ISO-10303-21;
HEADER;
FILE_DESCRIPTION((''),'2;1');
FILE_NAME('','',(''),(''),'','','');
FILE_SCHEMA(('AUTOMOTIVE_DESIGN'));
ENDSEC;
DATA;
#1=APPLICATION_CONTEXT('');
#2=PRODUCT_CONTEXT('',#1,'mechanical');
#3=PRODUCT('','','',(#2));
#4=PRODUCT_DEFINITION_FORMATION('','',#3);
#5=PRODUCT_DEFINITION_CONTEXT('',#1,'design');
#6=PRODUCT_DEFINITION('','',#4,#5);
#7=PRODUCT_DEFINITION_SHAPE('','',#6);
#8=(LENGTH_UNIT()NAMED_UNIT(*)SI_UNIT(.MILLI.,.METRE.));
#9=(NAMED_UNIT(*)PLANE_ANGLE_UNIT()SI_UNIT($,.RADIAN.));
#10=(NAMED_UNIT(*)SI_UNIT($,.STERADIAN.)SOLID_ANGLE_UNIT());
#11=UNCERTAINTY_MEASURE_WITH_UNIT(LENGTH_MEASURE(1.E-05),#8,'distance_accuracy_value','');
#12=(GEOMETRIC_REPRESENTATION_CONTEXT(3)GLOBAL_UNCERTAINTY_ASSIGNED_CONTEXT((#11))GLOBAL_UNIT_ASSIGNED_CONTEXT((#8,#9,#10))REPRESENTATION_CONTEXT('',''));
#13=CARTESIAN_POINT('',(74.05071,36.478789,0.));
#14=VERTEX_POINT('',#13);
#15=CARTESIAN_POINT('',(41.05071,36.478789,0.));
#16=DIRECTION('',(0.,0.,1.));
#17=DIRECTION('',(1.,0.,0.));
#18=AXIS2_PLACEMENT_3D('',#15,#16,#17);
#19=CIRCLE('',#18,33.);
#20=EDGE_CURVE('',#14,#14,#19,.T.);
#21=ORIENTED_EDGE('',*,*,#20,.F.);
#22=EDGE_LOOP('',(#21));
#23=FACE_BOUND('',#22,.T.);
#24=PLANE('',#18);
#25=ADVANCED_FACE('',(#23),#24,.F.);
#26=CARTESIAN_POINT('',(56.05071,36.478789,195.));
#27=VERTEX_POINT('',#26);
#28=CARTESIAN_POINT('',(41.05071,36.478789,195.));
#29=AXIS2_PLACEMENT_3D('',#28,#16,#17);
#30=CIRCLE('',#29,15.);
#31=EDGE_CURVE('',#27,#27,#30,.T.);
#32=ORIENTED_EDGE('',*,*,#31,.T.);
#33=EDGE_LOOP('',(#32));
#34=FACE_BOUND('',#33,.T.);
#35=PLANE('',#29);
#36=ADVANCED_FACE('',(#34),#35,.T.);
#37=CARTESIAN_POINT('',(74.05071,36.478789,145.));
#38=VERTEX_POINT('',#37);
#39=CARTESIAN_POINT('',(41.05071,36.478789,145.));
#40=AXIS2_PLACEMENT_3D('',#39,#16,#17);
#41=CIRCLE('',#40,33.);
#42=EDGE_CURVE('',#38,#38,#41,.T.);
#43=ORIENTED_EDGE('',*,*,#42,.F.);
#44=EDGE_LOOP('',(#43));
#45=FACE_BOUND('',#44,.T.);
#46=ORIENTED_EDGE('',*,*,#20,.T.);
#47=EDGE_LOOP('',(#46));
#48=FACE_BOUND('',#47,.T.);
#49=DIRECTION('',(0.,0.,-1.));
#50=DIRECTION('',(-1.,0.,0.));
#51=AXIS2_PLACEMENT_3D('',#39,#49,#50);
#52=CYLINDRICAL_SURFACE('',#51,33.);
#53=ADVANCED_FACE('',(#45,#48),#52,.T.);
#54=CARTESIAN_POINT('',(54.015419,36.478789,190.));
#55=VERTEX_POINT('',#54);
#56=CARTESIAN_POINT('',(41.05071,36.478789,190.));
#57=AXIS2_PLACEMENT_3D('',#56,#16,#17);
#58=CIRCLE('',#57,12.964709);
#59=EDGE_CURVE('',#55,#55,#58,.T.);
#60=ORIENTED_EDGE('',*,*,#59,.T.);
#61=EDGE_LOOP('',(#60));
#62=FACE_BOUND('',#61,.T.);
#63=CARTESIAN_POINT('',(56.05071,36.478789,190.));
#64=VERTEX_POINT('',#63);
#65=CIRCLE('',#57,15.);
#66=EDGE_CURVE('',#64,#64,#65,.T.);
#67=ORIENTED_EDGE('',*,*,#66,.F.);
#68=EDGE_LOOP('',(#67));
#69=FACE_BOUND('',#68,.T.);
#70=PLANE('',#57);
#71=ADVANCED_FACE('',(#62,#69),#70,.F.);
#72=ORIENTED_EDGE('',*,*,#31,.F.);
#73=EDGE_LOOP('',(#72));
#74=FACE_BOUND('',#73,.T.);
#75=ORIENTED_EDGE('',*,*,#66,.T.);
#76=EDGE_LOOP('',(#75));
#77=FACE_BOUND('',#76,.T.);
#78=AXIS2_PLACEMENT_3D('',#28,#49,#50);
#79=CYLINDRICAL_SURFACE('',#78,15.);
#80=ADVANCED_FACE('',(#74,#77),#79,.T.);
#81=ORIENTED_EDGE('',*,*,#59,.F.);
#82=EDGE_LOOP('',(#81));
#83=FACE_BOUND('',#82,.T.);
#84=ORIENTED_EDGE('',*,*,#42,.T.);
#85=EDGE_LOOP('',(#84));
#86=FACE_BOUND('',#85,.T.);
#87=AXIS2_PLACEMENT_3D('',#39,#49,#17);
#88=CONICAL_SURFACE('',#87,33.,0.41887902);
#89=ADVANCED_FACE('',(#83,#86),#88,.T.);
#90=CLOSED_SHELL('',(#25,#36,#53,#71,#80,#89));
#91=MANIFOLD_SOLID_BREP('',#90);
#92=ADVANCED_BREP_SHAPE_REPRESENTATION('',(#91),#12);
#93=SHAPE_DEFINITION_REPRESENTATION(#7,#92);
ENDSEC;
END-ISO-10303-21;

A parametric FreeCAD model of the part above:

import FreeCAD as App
import Part
import Sketcher

V = App.Vector
Q = App.Units.Quantity

doc = App.newDocument("Part")
params = doc.addObject("Spreadsheet::Sheet", "Params")
for row, (alias, value) in enumerate([
    ("sketch1_diameter", "66 mm"),
    ("pad1_length", "145 mm"),
    ("sketch2_diameter", "66 mm"),
    ("pad2_length", "45 mm"),
    ("pad2_taper", "-24 deg"),
    ("sketch3_diameter", "30 mm"),
    ("pad3_length", "5 mm"),
], start=1):
    params.set(f"A{row}", alias)
    params.set(f"B{row}", "=" + value)
    params.setAlias(f"B{row}", alias)

body = doc.addObject("PartDesign::Body", "Body")

# Sketch on XY plane
sketch1 = body.newObject("Sketcher::SketchObject", "Sketch")
sketch1.AttachmentSupport = (doc.getObject("XY_Plane"), [""])
sketch1.MapMode = "FlatFace"
sketch1.addGeometry(Part.Circle(V(41, 36, 0), V(0, 0, 1), 33), False)
sketch1.addConstraint(Sketcher.Constraint("Diameter", 0, Q("66 mm")))
sketch1.addConstraint(Sketcher.Constraint("DistanceX", -1, 1, 0, 3, Q("41.05071 mm")))
sketch1.addConstraint(Sketcher.Constraint("DistanceY", -1, 1, 0, 3, Q("36.478789 mm")))
sketch1.setExpression("Constraints[0]", "Params.sketch1_diameter")
pad1 = body.newObject("PartDesign::Pad", "Pad")
pad1.Profile = sketch1
pad1.setExpression("Length", "Params.pad1_length")

# Sketch on XY plane
sketch2 = body.newObject("Sketcher::SketchObject", "Sketch001")
sketch2.AttachmentSupport = (doc.getObject("XY_Plane"), [""])
sketch2.MapMode = "FlatFace"
sketch2.AttachmentOffset = App.Placement(V(0, 0, 145), App.Rotation())
sketch2.addGeometry(Part.Circle(V(41, 36, 0), V(0, 0, 1), 33), False)
sketch2.addConstraint(Sketcher.Constraint("Diameter", 0, Q("66 mm")))
sketch2.addConstraint(Sketcher.Constraint("DistanceX", -1, 1, 0, 3, Q("41.05071 mm")))
sketch2.addConstraint(Sketcher.Constraint("DistanceY", -1, 1, 0, 3, Q("36.478789 mm")))
sketch2.setExpression("Constraints[0]", "Params.sketch2_diameter")
pad2 = body.newObject("PartDesign::Pad", "Pad001")
pad2.Profile = sketch2
pad2.setExpression("Length", "Params.pad2_length")
pad2.setExpression("TaperAngle", "Params.pad2_taper")

# Sketch on XY plane
sketch3 = body.newObject("Sketcher::SketchObject", "Sketch002")
sketch3.AttachmentSupport = (doc.getObject("XY_Plane"), [""])
sketch3.MapMode = "FlatFace"
sketch3.AttachmentOffset = App.Placement(V(0, 0, 190), App.Rotation())
sketch3.addGeometry(Part.Circle(V(41, 36, 0), V(0, 0, 1), 15), False)
sketch3.addConstraint(Sketcher.Constraint("Diameter", 0, Q("30 mm")))
sketch3.addConstraint(Sketcher.Constraint("DistanceX", -1, 1, 0, 3, Q("41.05071 mm")))
sketch3.addConstraint(Sketcher.Constraint("DistanceY", -1, 1, 0, 3, Q("36.478789 mm")))
sketch3.setExpression("Constraints[0]", "Params.sketch3_diameter")
pad3 = body.newObject("PartDesign::Pad", "Pad002")
pad3.Profile = sketch3
pad3.setExpression("Length", "Params.pad3_length")

doc.recompute()
